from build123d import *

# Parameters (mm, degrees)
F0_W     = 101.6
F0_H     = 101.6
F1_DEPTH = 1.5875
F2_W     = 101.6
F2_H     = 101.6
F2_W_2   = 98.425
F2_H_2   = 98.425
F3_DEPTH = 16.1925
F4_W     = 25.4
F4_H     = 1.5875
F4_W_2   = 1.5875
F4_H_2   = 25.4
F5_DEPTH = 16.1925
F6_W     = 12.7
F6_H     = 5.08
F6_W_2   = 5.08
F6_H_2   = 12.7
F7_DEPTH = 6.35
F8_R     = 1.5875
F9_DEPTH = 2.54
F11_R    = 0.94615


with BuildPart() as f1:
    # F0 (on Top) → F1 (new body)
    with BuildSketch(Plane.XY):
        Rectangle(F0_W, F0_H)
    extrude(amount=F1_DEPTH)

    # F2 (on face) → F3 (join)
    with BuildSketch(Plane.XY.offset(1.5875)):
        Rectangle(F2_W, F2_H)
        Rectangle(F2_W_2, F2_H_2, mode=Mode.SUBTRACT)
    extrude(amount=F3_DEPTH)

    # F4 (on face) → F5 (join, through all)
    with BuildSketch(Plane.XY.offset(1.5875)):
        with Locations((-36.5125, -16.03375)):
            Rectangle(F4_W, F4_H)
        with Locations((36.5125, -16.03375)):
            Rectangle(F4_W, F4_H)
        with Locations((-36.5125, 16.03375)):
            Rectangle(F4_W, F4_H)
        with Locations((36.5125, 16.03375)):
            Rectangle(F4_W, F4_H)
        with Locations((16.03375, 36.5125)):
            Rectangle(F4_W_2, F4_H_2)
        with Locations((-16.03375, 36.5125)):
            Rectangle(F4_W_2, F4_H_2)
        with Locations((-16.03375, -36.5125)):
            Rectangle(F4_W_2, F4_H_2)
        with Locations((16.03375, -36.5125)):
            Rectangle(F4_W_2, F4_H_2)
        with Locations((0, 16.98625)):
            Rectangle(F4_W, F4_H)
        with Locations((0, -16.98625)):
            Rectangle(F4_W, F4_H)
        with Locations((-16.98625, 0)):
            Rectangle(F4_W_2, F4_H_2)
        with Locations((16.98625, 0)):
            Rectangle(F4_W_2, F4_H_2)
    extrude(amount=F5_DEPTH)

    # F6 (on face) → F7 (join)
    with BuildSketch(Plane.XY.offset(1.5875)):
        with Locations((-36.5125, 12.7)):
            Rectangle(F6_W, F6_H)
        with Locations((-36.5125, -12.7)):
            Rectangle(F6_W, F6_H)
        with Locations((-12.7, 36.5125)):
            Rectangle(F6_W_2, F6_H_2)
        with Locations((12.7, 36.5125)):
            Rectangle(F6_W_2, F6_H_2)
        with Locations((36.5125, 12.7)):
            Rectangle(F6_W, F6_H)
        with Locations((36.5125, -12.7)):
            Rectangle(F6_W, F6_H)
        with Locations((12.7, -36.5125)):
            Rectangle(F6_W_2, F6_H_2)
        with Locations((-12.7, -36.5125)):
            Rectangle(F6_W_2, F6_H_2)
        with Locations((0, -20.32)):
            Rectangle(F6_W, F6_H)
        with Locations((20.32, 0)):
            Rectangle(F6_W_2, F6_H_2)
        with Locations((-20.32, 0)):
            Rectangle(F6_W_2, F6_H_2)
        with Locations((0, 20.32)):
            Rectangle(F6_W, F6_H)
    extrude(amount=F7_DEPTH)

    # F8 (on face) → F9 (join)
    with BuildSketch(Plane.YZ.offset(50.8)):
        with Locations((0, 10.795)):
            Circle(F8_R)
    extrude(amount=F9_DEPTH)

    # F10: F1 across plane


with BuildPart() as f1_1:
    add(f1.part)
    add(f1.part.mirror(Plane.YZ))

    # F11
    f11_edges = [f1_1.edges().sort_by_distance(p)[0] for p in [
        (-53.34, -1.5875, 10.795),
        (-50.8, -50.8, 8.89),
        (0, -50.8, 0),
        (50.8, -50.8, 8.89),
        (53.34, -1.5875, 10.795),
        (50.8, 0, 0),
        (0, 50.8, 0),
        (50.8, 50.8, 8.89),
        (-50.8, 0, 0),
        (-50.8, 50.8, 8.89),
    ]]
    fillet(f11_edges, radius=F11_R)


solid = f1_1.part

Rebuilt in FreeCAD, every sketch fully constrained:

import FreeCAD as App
import Part
import Sketcher

V = App.Vector
Q = App.Units.Quantity


def edges_at(feature, points):
    """Names of the edges that pass closest to the given points."""
    edges = feature.Shape.Edges
    near = lambda p: min(range(len(edges)), key=lambda i: edges[i].distToShape(Part.Vertex(*p))[0])
    return sorted({f"Edge{near(p) + 1}" for p in points})

doc = App.newDocument("Part")
body = doc.addObject("PartDesign::Body", "Body")

# Sketch on XY plane
sketch1 = body.newObject("Sketcher::SketchObject", "Sketch")
sketch1.AttachmentSupport = (doc.getObject("XY_Plane"), [""])
sketch1.MapMode = "FlatFace"
sketch1.addGeometry([
    Part.LineSegment(V(-51, 51, 0), V(-51, -51, 0)),
    Part.LineSegment(V(-51, -51, 0), V(51, -51, 0)),
    Part.LineSegment(V(51, -51, 0), V(51, 51, 0)),
    Part.LineSegment(V(51, 51, 0), V(-51, 51, 0)),
], False)
sketch1.addConstraint([
    Sketcher.Constraint("Coincident", 0, 2, 1, 1),
    Sketcher.Constraint("Coincident", 1, 2, 2, 1),
    Sketcher.Constraint("Coincident", 2, 2, 3, 1),
    Sketcher.Constraint("Coincident", 3, 2, 0, 1),
    Sketcher.Constraint("Vertical", 0),
    Sketcher.Constraint("Horizontal", 1),
    Sketcher.Constraint("Vertical", 2),
    Sketcher.Constraint("Horizontal", 3),
    Sketcher.Constraint("Symmetric", 0, 2, 2, 2, -1, 1),
    Sketcher.Constraint("Equal", 3, 0),
    Sketcher.Constraint("DistanceX", 1, 1, 1, 2, Q("4 in")),
])
pad1 = body.newObject("PartDesign::Pad", "Pad")
pad1.Profile = sketch1
pad1.Length = Q("0.0625 in")

# Sketch on XY plane
sketch2 = body.newObject("Sketcher::SketchObject", "Sketch001")
sketch2.AttachmentSupport = (doc.getObject("XY_Plane"), [""])
sketch2.MapMode = "FlatFace"
sketch2.AttachmentOffset = App.Placement(V(0, 0, 0.0625 * 25.4), App.Rotation())
sketch2.addGeometry([
    Part.LineSegment(V(-51, 51, 0), V(-51, -51, 0)),  # 0
    Part.LineSegment(V(-51, -51, 0), V(51, -51, 0)),  # 1
    Part.LineSegment(V(51, -51, 0), V(51, 51, 0)),  # 2
    Part.LineSegment(V(51, 51, 0), V(-51, 51, 0)),  # 3
    Part.LineSegment(V(49, -49, 0), V(-49, -49, 0)),  # 4
    Part.LineSegment(V(-49, -49, 0), V(-49, 49, 0)),  # 5
    Part.LineSegment(V(-49, 49, 0), V(49, 49, 0)),  # 6
    Part.LineSegment(V(49, 49, 0), V(49, -49, 0)),  # 7
], False)
sketch2.addConstraint([
    Sketcher.Constraint("Coincident", 0, 2, 1, 1),
    Sketcher.Constraint("Coincident", 1, 2, 2, 1),
    Sketcher.Constraint("Coincident", 2, 2, 3, 1),
    Sketcher.Constraint("Coincident", 3, 2, 0, 1),
    Sketcher.Constraint("Coincident", 4, 2, 5, 1),
    Sketcher.Constraint("Coincident", 5, 2, 6, 1),
    Sketcher.Constraint("Coincident", 6, 2, 7, 1),
    Sketcher.Constraint("Coincident", 7, 2, 4, 1),
    Sketcher.Constraint("Vertical", 0),
    Sketcher.Constraint("Horizontal", 1),
    Sketcher.Constraint("Vertical", 2),
    Sketcher.Constraint("Horizontal", 3),
    Sketcher.Constraint("Horizontal", 4),
    Sketcher.Constraint("Vertical", 5),
    Sketcher.Constraint("Horizontal", 6),
    Sketcher.Constraint("Vertical", 7),
    Sketcher.Constraint("Symmetric", 0, 2, 2, 2, -1, 1),
    Sketcher.Constraint("Symmetric", 4, 2, 6, 2, -1, 1),
    Sketcher.Constraint("Equal", 3, 0),
    Sketcher.Constraint("Equal", 6, 5),
    Sketcher.Constraint("DistanceX", 1, 1, 1, 2, Q("4 in")),
    Sketcher.Constraint("DistanceX", 4, 2, 4, 1, Q("3.875 in")),
])
pad2 = body.newObject("PartDesign::Pad", "Pad001")
pad2.Profile = sketch2
pad2.Length = Q("0.6375 in")

# Sketch on XY plane
sketch3 = body.newObject("Sketcher::SketchObject", "Sketch002")
sketch3.AttachmentSupport = (doc.getObject("XY_Plane"), [""])
sketch3.MapMode = "FlatFace"
sketch3.AttachmentOffset = App.Placement(V(0, 0, 0.0625 * 25.4), App.Rotation())
sketch3.addGeometry([
    Part.LineSegment(V(-49.2, -15.2, 0), V(-49.2, -16.8, 0)),  # 0
    Part.LineSegment(V(-49.2, -16.8, 0), V(-23.8, -16.8, 0)),  # 1
    Part.LineSegment(V(-23.8, -16.8, 0), V(-23.8, -15.2, 0)),  # 2
    Part.LineSegment(V(-23.8, -15.2, 0), V(-49.2, -15.2, 0)),  # 3
    Part.LineSegment(V(23.8, -15.2, 0), V(23.8, -16.8, 0)),  # 4
    Part.LineSegment(V(23.8, -16.8, 0), V(49.2, -16.8, 0)),  # 5
    Part.LineSegment(V(49.2, -16.8, 0), V(49.2, -15.2, 0)),  # 6
    Part.LineSegment(V(49.2, -15.2, 0), V(23.8, -15.2, 0)),  # 7
    Part.LineSegment(V(-49.2, 16.8, 0), V(-49.2, 15.2, 0)),  # 8
    Part.LineSegment(V(-49.2, 15.2, 0), V(-23.8, 15.2, 0)),  # 9
    Part.LineSegment(V(-23.8, 15.2, 0), V(-23.8, 16.8, 0)),  # 10
    Part.LineSegment(V(-23.8, 16.8, 0), V(-49.2, 16.8, 0)),  # 11
    Part.LineSegment(V(23.8, 16.8, 0), V(23.8, 15.2, 0)),  # 12
    Part.LineSegment(V(23.8, 15.2, 0), V(49.2, 15.2, 0)),  # 13
    Part.LineSegment(V(49.2, 15.2, 0), V(49.2, 16.8, 0)),  # 14
    Part.LineSegment(V(49.2, 16.8, 0), V(23.8, 16.8, 0)),  # 15
    Part.LineSegment(V(15.2, 49.2, 0), V(15.2, 23.8, 0)),  # 16
    Part.LineSegment(V(15.2, 23.8, 0), V(16.8, 23.8, 0)),  # 17
    Part.LineSegment(V(16.8, 23.8, 0), V(16.8, 49.2, 0)),  # 18
    Part.LineSegment(V(16.8, 49.2, 0), V(15.2, 49.2, 0)),  # 19
    Part.LineSegment(V(-16.8, 49.2, 0), V(-16.8, 23.8, 0)),  # 20
    Part.LineSegment(V(-16.8, 23.8, 0), V(-15.2, 23.8, 0)),  # 21
    Part.LineSegment(V(-15.2, 23.8, 0), V(-15.2, 49.2, 0)),  # 22
    Part.LineSegment(V(-15.2, 49.2, 0), V(-16.8, 49.2, 0)),  # 23
    Part.LineSegment(V(-16.8, -23.8, 0), V(-16.8, -49.2, 0)),  # 24
    Part.LineSegment(V(-16.8, -49.2, 0), V(-15.2, -49.2, 0)),  # 25
    Part.LineSegment(V(-15.2, -49.2, 0), V(-15.2, -23.8, 0)),  # 26
    Part.LineSegment(V(-15.2, -23.8, 0), V(-16.8, -23.8, 0)),  # 27
    Part.LineSegment(V(15.2, -23.8, 0), V(15.2, -49.2, 0)),  # 28
    Part.LineSegment(V(15.2, -49.2, 0), V(16.8, -49.2, 0)),  # 29
    Part.LineSegment(V(16.8, -49.2, 0), V(16.8, -23.8, 0)),  # 30
    Part.LineSegment(V(16.8, -23.8, 0), V(15.2, -23.8, 0)),  # 31
    Part.LineSegment(V(-12.7, 17.8, 0), V(-12.7, 16.2, 0)),  # 32
    Part.LineSegment(V(-12.7, 16.2, 0), V(12.7, 16.2, 0)),  # 33
    Part.LineSegment(V(12.7, 16.2, 0), V(12.7, 17.8, 0)),  # 34
    Part.LineSegment(V(12.7, 17.8, 0), V(-12.7, 17.8, 0)),  # 35
    Part.LineSegment(V(-12.7, -16.2, 0), V(-12.7, -17.8, 0)),  # 36
    Part.LineSegment(V(-12.7, -17.8, 0), V(12.7, -17.8, 0)),  # 37
    Part.LineSegment(V(12.7, -17.8, 0), V(12.7, -16.2, 0)),  # 38
    Part.LineSegment(V(12.7, -16.2, 0), V(-12.7, -16.2, 0)),  # 39
    Part.LineSegment(V(-17.8, 12.7, 0), V(-17.8, -12.7, 0)),  # 40
    Part.LineSegment(V(-17.8, -12.7, 0), V(-16.2, -12.7, 0)),  # 41
    Part.LineSegment(V(-16.2, -12.7, 0), V(-16.2, 12.7, 0)),  # 42
    Part.LineSegment(V(-16.2, 12.7, 0), V(-17.8, 12.7, 0)),  # 43
    Part.LineSegment(V(16.2, 12.7, 0), V(16.2, -12.7, 0)),  # 44
    Part.LineSegment(V(16.2, -12.7, 0), V(17.8, -12.7, 0)),  # 45
    Part.LineSegment(V(17.8, -12.7, 0), V(17.8, 12.7, 0)),  # 46
    Part.LineSegment(V(17.8, 12.7, 0), V(16.2, 12.7, 0)),  # 47
], False)
sketch3.addConstraint([
    Sketcher.Constraint("Coincident", 0, 2, 1, 1),
    Sketcher.Constraint("Coincident", 1, 2, 2, 1),
    Sketcher.Constraint("Coincident", 2, 2, 3, 1),
    Sketcher.Constraint("Coincident", 3, 2, 0, 1),
    Sketcher.Constraint("Coincident", 4, 2, 5, 1),
    Sketcher.Constraint("Coincident", 5, 2, 6, 1),
    Sketcher.Constraint("Coincident", 6, 2, 7, 1),
    Sketcher.Constraint("Coincident", 7, 2, 4, 1),
    Sketcher.Constraint("Coincident", 8, 2, 9, 1),
    Sketcher.Constraint("Coincident", 9, 2, 10, 1),
    Sketcher.Constraint("Coincident", 10, 2, 11, 1),
    Sketcher.Constraint("Coincident", 11, 2, 8, 1),
    Sketcher.Constraint("Coincident", 12, 2, 13, 1),
    Sketcher.Constraint("Coincident", 13, 2, 14, 1),
    Sketcher.Constraint("Coincident", 14, 2, 15, 1),
    Sketcher.Constraint("Coincident", 15, 2, 12, 1),
    Sketcher.Constraint("Coincident", 16, 2, 17, 1),
    Sketcher.Constraint("Coincident", 17, 2, 18, 1),
    Sketcher.Constraint("Coincident", 18, 2, 19, 1),
    Sketcher.Constraint("Coincident", 19, 2, 16, 1),
    Sketcher.Constraint("Coincident", 20, 2, 21, 1),
    Sketcher.Constraint("Coincident", 21, 2, 22, 1),
    Sketcher.Constraint("Coincident", 22, 2, 23, 1),
    Sketcher.Constraint("Coincident", 23, 2, 20, 1),
    Sketcher.Constraint("Coincident", 24, 2, 25, 1),
    Sketcher.Constraint("Coincident", 25, 2, 26, 1),
    Sketcher.Constraint("Coincident", 26, 2, 27, 1),
    Sketcher.Constraint("Coincident", 27, 2, 24, 1),
    Sketcher.Constraint("Coincident", 28, 2, 29, 1),
    Sketcher.Constraint("Coincident", 29, 2, 30, 1),
    Sketcher.Constraint("Coincident", 30, 2, 31, 1),
    Sketcher.Constraint("Coincident", 31, 2, 28, 1),
    Sketcher.Constraint("Coincident", 32, 2, 33, 1),
    Sketcher.Constraint("Coincident", 33, 2, 34, 1),
    Sketcher.Constraint("Coincident", 34, 2, 35, 1),
    Sketcher.Constraint("Coincident", 35, 2, 32, 1),
    Sketcher.Constraint("Coincident", 36, 2, 37, 1),
    Sketcher.Constraint("Coincident", 37, 2, 38, 1),
    Sketcher.Constraint("Coincident", 38, 2, 39, 1),
    Sketcher.Constraint("Coincident", 39, 2, 36, 1),
    Sketcher.Constraint("Coincident", 40, 2, 41, 1),
    Sketcher.Constraint("Coincident", 41, 2, 42, 1),
    Sketcher.Constraint("Coincident", 42, 2, 43, 1),
    Sketcher.Constraint("Coincident", 43, 2, 40, 1),
    Sketcher.Constraint("Coincident", 44, 2, 45, 1),
    Sketcher.Constraint("Coincident", 45, 2, 46, 1),
    Sketcher.Constraint("Coincident", 46, 2, 47, 1),
    Sketcher.Constraint("Coincident", 47, 2, 44, 1),
    Sketcher.Constraint("Vertical", 0),
    Sketcher.Constraint("Horizontal", 1),
    Sketcher.Constraint("Vertical", 2),
    Sketcher.Constraint("Horizontal", 3),
    Sketcher.Constraint("Vertical", 4),
    Sketcher.Constraint("Horizontal", 5),
    Sketcher.Constraint("Vertical", 6),
    Sketcher.Constraint("Horizontal", 7),
    Sketcher.Constraint("Vertical", 8),
    Sketcher.Constraint("Horizontal", 9),
    Sketcher.Constraint("Vertical", 10),
    Sketcher.Constraint("Horizontal", 11),
    Sketcher.Constraint("Vertical", 12),
    Sketcher.Constraint("Horizontal", 13),
    Sketcher.Constraint("Vertical", 14),
    Sketcher.Constraint("Horizontal", 15),
    Sketcher.Constraint("Vertical", 16),
    Sketcher.Constraint("Horizontal", 17),
    Sketcher.Constraint("Vertical", 18),
    Sketcher.Constraint("Horizontal", 19),
    Sketcher.Constraint("Vertical", 20),
    Sketcher.Constraint("Horizontal", 21),
    Sketcher.Constraint("Vertical", 22),
    Sketcher.Constraint("Horizontal", 23),
    Sketcher.Constraint("Vertical", 24),
    Sketcher.Constraint("Horizontal", 25),
    Sketcher.Constraint("Vertical", 26),
    Sketcher.Constraint("Horizontal", 27),
    Sketcher.Constraint("Vertical", 28),
    Sketcher.Constraint("Horizontal", 29),
    Sketcher.Constraint("Vertical", 30),
    Sketcher.Constraint("Horizontal", 31),
    Sketcher.Constraint("Vertical", 32),
    Sketcher.Constraint("Horizontal", 33),
    Sketcher.Constraint("Vertical", 34),
    Sketcher.Constraint("Horizontal", 35),
    Sketcher.Constraint("Vertical", 36),
    Sketcher.Constraint("Horizontal", 37),
    Sketcher.Constraint("Vertical", 38),
    Sketcher.Constraint("Horizontal", 39),
    Sketcher.Constraint("Vertical", 40),
    Sketcher.Constraint("Horizontal", 41),
    Sketcher.Constraint("Vertical", 42),
    Sketcher.Constraint("Horizontal", 43),
    Sketcher.Constraint("Vertical", 44),
    Sketcher.Constraint("Horizontal", 45),
    Sketcher.Constraint("Vertical", 46),
    Sketcher.Constraint("Horizontal", 47),
    Sketcher.Constraint("Symmetric", 6, 2, 8, 2, -1, 1),
    Sketcher.Constraint("Symmetric", 4, 2, 10, 2, -1, 1),
    Sketcher.Constraint("Symmetric", 2, 2, 12, 2, -1, 1),
    Sketcher.Constraint("Symmetric", 0, 2, 14, 2, -1, 1),
    Sketcher.Constraint("Symmetric", 18, 2, 24, 2, -1, 1),
    Sketcher.Constraint("Symmetric", 16, 2, 26, 2, -1, 1),
    Sketcher.Constraint("Symmetric", 22, 2, 28, 2, -1, 1),
    Sketcher.Constraint("Symmetric", 20, 2, 30, 2, -1, 1),
    Sketcher.Constraint("Symmetric", 34, 2, 36, 2, -1, 1),
    Sketcher.Constraint("Symmetric", 32, 2, 38, 2, -1, 1),
    Sketcher.Constraint("Symmetric", 42, 2, 44, 2, -1, 1),
    Sketcher.Constraint("Symmetric", 40, 2, 46, 2, -1, 1),
    Sketcher.Constraint("Symmetric", 1, 2, 4, 2, -2),
    Sketcher.Constraint("Symmetric", 3, 2, 6, 2, -2),
    Sketcher.Constraint("Symmetric", 17, 2, 20, 2, -2),
    Sketcher.Constraint("Symmetric", 19, 2, 22, 2, -2),
    Sketcher.Constraint("Horizontal", 41, 2, 44, 2),
    Sketcher.Constraint("Vertical", 35, 2, 36, 2),
    Sketcher.Constraint("Equal", 15, 33),
    Sketcher.Constraint("Equal", 31, 41),
    Sketcher.Constraint("Equal", 47, 0),
    Sketcher.Constraint("Equal", 39, 16),
    Sketcher.Constraint("Equal", 14, 32),
    Sketcher.Constraint("Equal", 30, 40),
    Sketcher.Constraint("DistanceX", 1, 1, 1, 2, Q("1 in")),
    Sketcher.Constraint("DistanceY", 2, 2, -1, 1, Q("0.6 in")),
    Sketcher.Constraint("DistanceX", -1, 1, 16, 2, Q("0.6 in")),
    Sketcher.Constraint("DistanceY", -1, 1, 34, 2, Q("0.7 in")),
    Sketcher.Constraint("DistanceX", 40, 2, -1, 1, Q("0.7 in")),
    Sketcher.Constraint("DistanceX", 24, 2, 4, 2, Q("1.6 in")),
    Sketcher.Constraint("DistanceY", 32, 2, 21, 2, Q("0.3 in")),
    Sketcher.Constraint("DistanceX", 17, 1, 17, 2, Q("0.0625 in")),
])
pad3 = body.newObject("PartDesign::Pad", "Pad002")
pad3.Profile = sketch3
pad3.Length = Q("0.6375 in")

# Sketch on XY plane
sketch4 = body.newObject("Sketcher::SketchObject", "Sketch003")
sketch4.AttachmentSupport = (doc.getObject("XY_Plane"), [""])
sketch4.MapMode = "FlatFace"
sketch4.AttachmentOffset = App.Placement(V(0, 0, 0.0625 * 25.4), App.Rotation())
sketch4.addGeometry([
    Part.LineSegment(V(-43, 15, 0), V(-43, 10, 0)),  # 0
    Part.LineSegment(V(-43, 10, 0), V(-30, 10, 0)),  # 1
    Part.LineSegment(V(-30, 10, 0), V(-30, 15, 0)),  # 2
    Part.LineSegment(V(-30, 15, 0), V(-43, 15, 0)),  # 3
    Part.LineSegment(V(-43, -10, 0), V(-43, -15, 0)),  # 4
    Part.LineSegment(V(-43, -15, 0), V(-30, -15, 0)),  # 5
    Part.LineSegment(V(-30, -15, 0), V(-30, -10, 0)),  # 6
    Part.LineSegment(V(-30, -10, 0), V(-43, -10, 0)),  # 7
    Part.LineSegment(V(-15, 43, 0), V(-15, 30, 0)),  # 8
    Part.LineSegment(V(-15, 30, 0), V(-10, 30, 0)),  # 9
    Part.LineSegment(V(-10, 30, 0), V(-10, 43, 0)),  # 10
    Part.LineSegment(V(-10, 43, 0), V(-15, 43, 0)),  # 11
    Part.LineSegment(V(10, 43, 0), V(10, 30, 0)),  # 12
    Part.LineSegment(V(10, 30, 0), V(15, 30, 0)),  # 13
    Part.LineSegment(V(15, 30, 0), V(15, 43, 0)),  # 14
    Part.LineSegment(V(15, 43, 0), V(10, 43, 0)),  # 15
    Part.LineSegment(V(30, 15, 0), V(30, 10, 0)),  # 16
    Part.LineSegment(V(30, 10, 0), V(43, 10, 0)),  # 17
    Part.LineSegment(V(43, 10, 0), V(43, 15, 0)),  # 18
    Part.LineSegment(V(43, 15, 0), V(30, 15, 0)),  # 19
    Part.LineSegment(V(30, -10, 0), V(30, -15, 0)),  # 20
    Part.LineSegment(V(30, -15, 0), V(43, -15, 0)),  # 21
    Part.LineSegment(V(43, -15, 0), V(43, -10, 0)),  # 22
    Part.LineSegment(V(43, -10, 0), V(30, -10, 0)),  # 23
    Part.LineSegment(V(10, -30, 0), V(10, -43, 0)),  # 24
    Part.LineSegment(V(10, -43, 0), V(15, -43, 0)),  # 25
    Part.LineSegment(V(15, -43, 0), V(15, -30, 0)),  # 26
    Part.LineSegment(V(15, -30, 0), V(10, -30, 0)),  # 27
    Part.LineSegment(V(-15, -30, 0), V(-15, -43, 0)),  # 28
    Part.LineSegment(V(-15, -43, 0), V(-10, -43, 0)),  # 29
    Part.LineSegment(V(-10, -43, 0), V(-10, -30, 0)),  # 30
    Part.LineSegment(V(-10, -30, 0), V(-15, -30, 0)),  # 31
    Part.LineSegment(V(-6, -18, 0), V(-6, -23, 0)),  # 32
    Part.LineSegment(V(-6, -23, 0), V(6, -23, 0)),  # 33
    Part.LineSegment(V(6, -23, 0), V(6, -18, 0)),  # 34
    Part.LineSegment(V(6, -18, 0), V(-6, -18, 0)),  # 35
    Part.LineSegment(V(18, 6, 0), V(18, -6, 0)),  # 36
    Part.LineSegment(V(18, -6, 0), V(23, -6, 0)),  # 37
    Part.LineSegment(V(23, -6, 0), V(23, 6, 0)),  # 38
    Part.LineSegment(V(23, 6, 0), V(18, 6, 0)),  # 39
    Part.LineSegment(V(-23, 6, 0), V(-23, -6, 0)),  # 40
    Part.LineSegment(V(-23, -6, 0), V(-18, -6, 0)),  # 41
    Part.LineSegment(V(-18, -6, 0), V(-18, 6, 0)),  # 42
    Part.LineSegment(V(-18, 6, 0), V(-23, 6, 0)),  # 43
    Part.LineSegment(V(-6, 23, 0), V(-6, 18, 0)),  # 44
    Part.LineSegment(V(-6, 18, 0), V(6, 18, 0)),  # 45
    Part.LineSegment(V(6, 18, 0), V(6, 23, 0)),  # 46
    Part.LineSegment(V(6, 23, 0), V(-6, 23, 0)),  # 47
], False)
sketch4.addConstraint([
    Sketcher.Constraint("Coincident", 0, 2, 1, 1),
    Sketcher.Constraint("Coincident", 1, 2, 2, 1),
    Sketcher.Constraint("Coincident", 2, 2, 3, 1),
    Sketcher.Constraint("Coincident", 3, 2, 0, 1),
    Sketcher.Constraint("Coincident", 4, 2, 5, 1),
    Sketcher.Constraint("Coincident", 5, 2, 6, 1),
    Sketcher.Constraint("Coincident", 6, 2, 7, 1),
    Sketcher.Constraint("Coincident", 7, 2, 4, 1),
    Sketcher.Constraint("Coincident", 8, 2, 9, 1),
    Sketcher.Constraint("Coincident", 9, 2, 10, 1),
    Sketcher.Constraint("Coincident", 10, 2, 11, 1),
    Sketcher.Constraint("Coincident", 11, 2, 8, 1),
    Sketcher.Constraint("Coincident", 12, 2, 13, 1),
    Sketcher.Constraint("Coincident", 13, 2, 14, 1),
    Sketcher.Constraint("Coincident", 14, 2, 15, 1),
    Sketcher.Constraint("Coincident", 15, 2, 12, 1),
    Sketcher.Constraint("Coincident", 16, 2, 17, 1),
    Sketcher.Constraint("Coincident", 17, 2, 18, 1),
    Sketcher.Constraint("Coincident", 18, 2, 19, 1),
    Sketcher.Constraint("Coincident", 19, 2, 16, 1),
    Sketcher.Constraint("Coincident", 20, 2, 21, 1),
    Sketcher.Constraint("Coincident", 21, 2, 22, 1),
    Sketcher.Constraint("Coincident", 22, 2, 23, 1),
    Sketcher.Constraint("Coincident", 23, 2, 20, 1),
    Sketcher.Constraint("Coincident", 24, 2, 25, 1),
    Sketcher.Constraint("Coincident", 25, 2, 26, 1),
    Sketcher.Constraint("Coincident", 26, 2, 27, 1),
    Sketcher.Constraint("Coincident", 27, 2, 24, 1),
    Sketcher.Constraint("Coincident", 28, 2, 29, 1),
    Sketcher.Constraint("Coincident", 29, 2, 30, 1),
    Sketcher.Constraint("Coincident", 30, 2, 31, 1),
    Sketcher.Constraint("Coincident", 31, 2, 28, 1),
    Sketcher.Constraint("Coincident", 32, 2, 33, 1),
    Sketcher.Constraint("Coincident", 33, 2, 34, 1),
    Sketcher.Constraint("Coincident", 34, 2, 35, 1),
    Sketcher.Constraint("Coincident", 35, 2, 32, 1),
    Sketcher.Constraint("Coincident", 36, 2, 37, 1),
    Sketcher.Constraint("Coincident", 37, 2, 38, 1),
    Sketcher.Constraint("Coincident", 38, 2, 39, 1),
    Sketcher.Constraint("Coincident", 39, 2, 36, 1),
    Sketcher.Constraint("Coincident", 40, 2, 41, 1),
    Sketcher.Constraint("Coincident", 41, 2, 42, 1),
    Sketcher.Constraint("Coincident", 42, 2, 43, 1),
    Sketcher.Constraint("Coincident", 43, 2, 40, 1),
    Sketcher.Constraint("Coincident", 44, 2, 45, 1),
    Sketcher.Constraint("Coincident", 45, 2, 46, 1),
    Sketcher.Constraint("Coincident", 46, 2, 47, 1),
    Sketcher.Constraint("Coincident", 47, 2, 44, 1),
    Sketcher.Constraint("Vertical", 0),
    Sketcher.Constraint("Horizontal", 1),
    Sketcher.Constraint("Vertical", 2),
    Sketcher.Constraint("Horizontal", 3),
    Sketcher.Constraint("Vertical", 4),
    Sketcher.Constraint("Horizontal", 5),
    Sketcher.Constraint("Vertical", 6),
    Sketcher.Constraint("Horizontal", 7),
    Sketcher.Constraint("Vertical", 8),
    Sketcher.Constraint("Horizontal", 9),
    Sketcher.Constraint("Vertical", 10),
    Sketcher.Constraint("Horizontal", 11),
    Sketcher.Constraint("Vertical", 12),
    Sketcher.Constraint("Horizontal", 13),
    Sketcher.Constraint("Vertical", 14),
    Sketcher.Constraint("Horizontal", 15),
    Sketcher.Constraint("Vertical", 16),
    Sketcher.Constraint("Horizontal", 17),
    Sketcher.Constraint("Vertical", 18),
    Sketcher.Constraint("Horizontal", 19),
    Sketcher.Constraint("Vertical", 20),
    Sketcher.Constraint("Horizontal", 21),
    Sketcher.Constraint("Vertical", 22),
    Sketcher.Constraint("Horizontal", 23),
    Sketcher.Constraint("Vertical", 24),
    Sketcher.Constraint("Horizontal", 25),
    Sketcher.Constraint("Vertical", 26),
    Sketcher.Constraint("Horizontal", 27),
    Sketcher.Constraint("Vertical", 28),
    Sketcher.Constraint("Horizontal", 29),
    Sketcher.Constraint("Vertical", 30),
    Sketcher.Constraint("Horizontal", 31),
    Sketcher.Constraint("Vertical", 32),
    Sketcher.Constraint("Horizontal", 33),
    Sketcher.Constraint("Vertical", 34),
    Sketcher.Constraint("Horizontal", 35),
    Sketcher.Constraint("Vertical", 36),
    Sketcher.Constraint("Horizontal", 37),
    Sketcher.Constraint("Vertical", 38),
    Sketcher.Constraint("Horizontal", 39),
    Sketcher.Constraint("Vertical", 40),
    Sketcher.Constraint("Horizontal", 41),
    Sketcher.Constraint("Vertical", 42),
    Sketcher.Constraint("Horizontal", 43),
    Sketcher.Constraint("Vertical", 44),
    Sketcher.Constraint("Horizontal", 45),
    Sketcher.Constraint("Vertical", 46),
    Sketcher.Constraint("Horizontal", 47),
    Sketcher.Constraint("Symmetric", 6, 2, 16, 2, -1, 1),
    Sketcher.Constraint("Symmetric", 4, 2, 18, 2, -1, 1),
    Sketcher.Constraint("Symmetric", 2, 2, 20, 2, -1, 1),
    Sketcher.Constraint("Symmetric", 0, 2, 22, 2, -1, 1),
    Sketcher.Constraint("Symmetric", 10, 2, 24, 2, -1, 1),
    Sketcher.Constraint("Symmetric", 8, 2, 26, 2, -1, 1),
    Sketcher.Constraint("Symmetric", 14, 2, 28, 2, -1, 1),
    Sketcher.Constraint("Symmetric", 12, 2, 30, 2, -1, 1),
    Sketcher.Constraint("Symmetric", 38, 2, 40, 2, -1, 1),
    Sketcher.Constraint("Symmetric", 36, 2, 42, 2, -1, 1),
    Sketcher.Constraint("Symmetric", 34, 2, 44, 2, -1, 1),
    Sketcher.Constraint("Symmetric", 32, 2, 46, 2, -1, 1),
    Sketcher.Constraint("Symmetric", 9, 2, 12, 2, -2),
    Sketcher.Constraint("Symmetric", 11, 2, 14, 2, -2),
    Sketcher.Constraint("Symmetric", 1, 2, 16, 2, -2),
    Sketcher.Constraint("Symmetric", 3, 2, 18, 2, -2),
    Sketcher.Constraint("Horizontal", 37, 2, 40, 2),
    Sketcher.Constraint("Vertical", 35, 2, 44, 2),
    Sketcher.Constraint("Equal", 23, 33),
    Sketcher.Constraint("Equal", 31, 37),
    Sketcher.Constraint("Equal", 43, 0),
    Sketcher.Constraint("Equal", 47, 8),
    Sketcher.Constraint("Equal", 22, 32),
    Sketcher.Constraint("Equal", 30, 36),
    Sketcher.Constraint("DistanceX", 1, 1, 1, 2, Q("0.5 in")),
    Sketcher.Constraint("DistanceX", 9, 1, 9, 2, Q("0.2 in")),
    Sketcher.Constraint("DistanceY", 4, 2, 0, 2, Q("1 in")),
    Sketcher.Constraint("DistanceX", 8, 2, 12, 2, Q("1 in")),
    Sketcher.Constraint("DistanceY", 32, 2, -1, 1, Q("0.9 in")),
    Sketcher.Constraint("DistanceX", -1, 1, 36, 2, Q("0.7 in")),
    Sketcher.Constraint("DistanceX", 0, 2, -1, 1, Q("1.6875 in")),
    Sketcher.Constraint("DistanceY", -1, 1, 8, 2, Q("1.1875 in")),
])
pad4 = body.newObject("PartDesign::Pad", "Pad003")
pad4.Profile = sketch4
pad4.Length = Q("0.25 in")

# Sketch on YZ plane
sketch5 = body.newObject("Sketcher::SketchObject", "Sketch004")
sketch5.AttachmentSupport = (doc.getObject("YZ_Plane"), [""])
sketch5.MapMode = "FlatFace"
sketch5.AttachmentOffset = App.Placement(V(0, 0, 2 * 25.4), App.Rotation())
sketch5.addGeometry(Part.Circle(V(0, 10.8, 0), V(0, 0, 1), 1.6), False)
sketch5.addConstraint([
    Sketcher.Constraint("PointOnObject", 0, 3, -2),
    Sketcher.Constraint("Diameter", 0, Q("0.125 in")),
    Sketcher.Constraint("DistanceY", -1, 1, 0, 3, Q("0.425 in")),
])
pad5 = body.newObject("PartDesign::Pad", "Pad004")
pad5.Profile = sketch5
pad5.Length = Q("0.1 in")
body2 = doc.addObject("PartDesign::Body", "Body001")
doc.recompute()

body2.BaseFeature = body
doc.recompute()

mirroring = doc.addObject("Part::Mirroring", "Mirroring")
mirroring.Source = body
mirroring.Base = V(0, 0, 0)
mirroring.Normal = V(1, 0, 0)
body3 = doc.addObject("PartDesign::Body", "Body002")
body3.BaseFeature = mirroring
boolean = body2.newObject("PartDesign::Boolean", "Boolean")
boolean.Type = "Fuse"
boolean.addObjects([body3])
doc.recompute()

fillet = body2.newObject("PartDesign::Fillet", "Fillet")
fillet.Base = (boolean, edges_at(boolean, [
    (-53.34, -1.587, 10.795),
    (-50.8, -50.8, 8.89),
    (0, -50.8, 0),
    (50.8, -50.8, 8.89),
    (53.34, -1.587, 10.795),
    (50.8, 0, 0),
    (0, 50.8, 0),
    (50.8, 50.8, 8.89),
    (-50.8, 0, 0),
    (-50.8, 50.8, 8.89),
]))
fillet.Radius = 0.94615
mirroring.Visibility = False

doc.recompute()
